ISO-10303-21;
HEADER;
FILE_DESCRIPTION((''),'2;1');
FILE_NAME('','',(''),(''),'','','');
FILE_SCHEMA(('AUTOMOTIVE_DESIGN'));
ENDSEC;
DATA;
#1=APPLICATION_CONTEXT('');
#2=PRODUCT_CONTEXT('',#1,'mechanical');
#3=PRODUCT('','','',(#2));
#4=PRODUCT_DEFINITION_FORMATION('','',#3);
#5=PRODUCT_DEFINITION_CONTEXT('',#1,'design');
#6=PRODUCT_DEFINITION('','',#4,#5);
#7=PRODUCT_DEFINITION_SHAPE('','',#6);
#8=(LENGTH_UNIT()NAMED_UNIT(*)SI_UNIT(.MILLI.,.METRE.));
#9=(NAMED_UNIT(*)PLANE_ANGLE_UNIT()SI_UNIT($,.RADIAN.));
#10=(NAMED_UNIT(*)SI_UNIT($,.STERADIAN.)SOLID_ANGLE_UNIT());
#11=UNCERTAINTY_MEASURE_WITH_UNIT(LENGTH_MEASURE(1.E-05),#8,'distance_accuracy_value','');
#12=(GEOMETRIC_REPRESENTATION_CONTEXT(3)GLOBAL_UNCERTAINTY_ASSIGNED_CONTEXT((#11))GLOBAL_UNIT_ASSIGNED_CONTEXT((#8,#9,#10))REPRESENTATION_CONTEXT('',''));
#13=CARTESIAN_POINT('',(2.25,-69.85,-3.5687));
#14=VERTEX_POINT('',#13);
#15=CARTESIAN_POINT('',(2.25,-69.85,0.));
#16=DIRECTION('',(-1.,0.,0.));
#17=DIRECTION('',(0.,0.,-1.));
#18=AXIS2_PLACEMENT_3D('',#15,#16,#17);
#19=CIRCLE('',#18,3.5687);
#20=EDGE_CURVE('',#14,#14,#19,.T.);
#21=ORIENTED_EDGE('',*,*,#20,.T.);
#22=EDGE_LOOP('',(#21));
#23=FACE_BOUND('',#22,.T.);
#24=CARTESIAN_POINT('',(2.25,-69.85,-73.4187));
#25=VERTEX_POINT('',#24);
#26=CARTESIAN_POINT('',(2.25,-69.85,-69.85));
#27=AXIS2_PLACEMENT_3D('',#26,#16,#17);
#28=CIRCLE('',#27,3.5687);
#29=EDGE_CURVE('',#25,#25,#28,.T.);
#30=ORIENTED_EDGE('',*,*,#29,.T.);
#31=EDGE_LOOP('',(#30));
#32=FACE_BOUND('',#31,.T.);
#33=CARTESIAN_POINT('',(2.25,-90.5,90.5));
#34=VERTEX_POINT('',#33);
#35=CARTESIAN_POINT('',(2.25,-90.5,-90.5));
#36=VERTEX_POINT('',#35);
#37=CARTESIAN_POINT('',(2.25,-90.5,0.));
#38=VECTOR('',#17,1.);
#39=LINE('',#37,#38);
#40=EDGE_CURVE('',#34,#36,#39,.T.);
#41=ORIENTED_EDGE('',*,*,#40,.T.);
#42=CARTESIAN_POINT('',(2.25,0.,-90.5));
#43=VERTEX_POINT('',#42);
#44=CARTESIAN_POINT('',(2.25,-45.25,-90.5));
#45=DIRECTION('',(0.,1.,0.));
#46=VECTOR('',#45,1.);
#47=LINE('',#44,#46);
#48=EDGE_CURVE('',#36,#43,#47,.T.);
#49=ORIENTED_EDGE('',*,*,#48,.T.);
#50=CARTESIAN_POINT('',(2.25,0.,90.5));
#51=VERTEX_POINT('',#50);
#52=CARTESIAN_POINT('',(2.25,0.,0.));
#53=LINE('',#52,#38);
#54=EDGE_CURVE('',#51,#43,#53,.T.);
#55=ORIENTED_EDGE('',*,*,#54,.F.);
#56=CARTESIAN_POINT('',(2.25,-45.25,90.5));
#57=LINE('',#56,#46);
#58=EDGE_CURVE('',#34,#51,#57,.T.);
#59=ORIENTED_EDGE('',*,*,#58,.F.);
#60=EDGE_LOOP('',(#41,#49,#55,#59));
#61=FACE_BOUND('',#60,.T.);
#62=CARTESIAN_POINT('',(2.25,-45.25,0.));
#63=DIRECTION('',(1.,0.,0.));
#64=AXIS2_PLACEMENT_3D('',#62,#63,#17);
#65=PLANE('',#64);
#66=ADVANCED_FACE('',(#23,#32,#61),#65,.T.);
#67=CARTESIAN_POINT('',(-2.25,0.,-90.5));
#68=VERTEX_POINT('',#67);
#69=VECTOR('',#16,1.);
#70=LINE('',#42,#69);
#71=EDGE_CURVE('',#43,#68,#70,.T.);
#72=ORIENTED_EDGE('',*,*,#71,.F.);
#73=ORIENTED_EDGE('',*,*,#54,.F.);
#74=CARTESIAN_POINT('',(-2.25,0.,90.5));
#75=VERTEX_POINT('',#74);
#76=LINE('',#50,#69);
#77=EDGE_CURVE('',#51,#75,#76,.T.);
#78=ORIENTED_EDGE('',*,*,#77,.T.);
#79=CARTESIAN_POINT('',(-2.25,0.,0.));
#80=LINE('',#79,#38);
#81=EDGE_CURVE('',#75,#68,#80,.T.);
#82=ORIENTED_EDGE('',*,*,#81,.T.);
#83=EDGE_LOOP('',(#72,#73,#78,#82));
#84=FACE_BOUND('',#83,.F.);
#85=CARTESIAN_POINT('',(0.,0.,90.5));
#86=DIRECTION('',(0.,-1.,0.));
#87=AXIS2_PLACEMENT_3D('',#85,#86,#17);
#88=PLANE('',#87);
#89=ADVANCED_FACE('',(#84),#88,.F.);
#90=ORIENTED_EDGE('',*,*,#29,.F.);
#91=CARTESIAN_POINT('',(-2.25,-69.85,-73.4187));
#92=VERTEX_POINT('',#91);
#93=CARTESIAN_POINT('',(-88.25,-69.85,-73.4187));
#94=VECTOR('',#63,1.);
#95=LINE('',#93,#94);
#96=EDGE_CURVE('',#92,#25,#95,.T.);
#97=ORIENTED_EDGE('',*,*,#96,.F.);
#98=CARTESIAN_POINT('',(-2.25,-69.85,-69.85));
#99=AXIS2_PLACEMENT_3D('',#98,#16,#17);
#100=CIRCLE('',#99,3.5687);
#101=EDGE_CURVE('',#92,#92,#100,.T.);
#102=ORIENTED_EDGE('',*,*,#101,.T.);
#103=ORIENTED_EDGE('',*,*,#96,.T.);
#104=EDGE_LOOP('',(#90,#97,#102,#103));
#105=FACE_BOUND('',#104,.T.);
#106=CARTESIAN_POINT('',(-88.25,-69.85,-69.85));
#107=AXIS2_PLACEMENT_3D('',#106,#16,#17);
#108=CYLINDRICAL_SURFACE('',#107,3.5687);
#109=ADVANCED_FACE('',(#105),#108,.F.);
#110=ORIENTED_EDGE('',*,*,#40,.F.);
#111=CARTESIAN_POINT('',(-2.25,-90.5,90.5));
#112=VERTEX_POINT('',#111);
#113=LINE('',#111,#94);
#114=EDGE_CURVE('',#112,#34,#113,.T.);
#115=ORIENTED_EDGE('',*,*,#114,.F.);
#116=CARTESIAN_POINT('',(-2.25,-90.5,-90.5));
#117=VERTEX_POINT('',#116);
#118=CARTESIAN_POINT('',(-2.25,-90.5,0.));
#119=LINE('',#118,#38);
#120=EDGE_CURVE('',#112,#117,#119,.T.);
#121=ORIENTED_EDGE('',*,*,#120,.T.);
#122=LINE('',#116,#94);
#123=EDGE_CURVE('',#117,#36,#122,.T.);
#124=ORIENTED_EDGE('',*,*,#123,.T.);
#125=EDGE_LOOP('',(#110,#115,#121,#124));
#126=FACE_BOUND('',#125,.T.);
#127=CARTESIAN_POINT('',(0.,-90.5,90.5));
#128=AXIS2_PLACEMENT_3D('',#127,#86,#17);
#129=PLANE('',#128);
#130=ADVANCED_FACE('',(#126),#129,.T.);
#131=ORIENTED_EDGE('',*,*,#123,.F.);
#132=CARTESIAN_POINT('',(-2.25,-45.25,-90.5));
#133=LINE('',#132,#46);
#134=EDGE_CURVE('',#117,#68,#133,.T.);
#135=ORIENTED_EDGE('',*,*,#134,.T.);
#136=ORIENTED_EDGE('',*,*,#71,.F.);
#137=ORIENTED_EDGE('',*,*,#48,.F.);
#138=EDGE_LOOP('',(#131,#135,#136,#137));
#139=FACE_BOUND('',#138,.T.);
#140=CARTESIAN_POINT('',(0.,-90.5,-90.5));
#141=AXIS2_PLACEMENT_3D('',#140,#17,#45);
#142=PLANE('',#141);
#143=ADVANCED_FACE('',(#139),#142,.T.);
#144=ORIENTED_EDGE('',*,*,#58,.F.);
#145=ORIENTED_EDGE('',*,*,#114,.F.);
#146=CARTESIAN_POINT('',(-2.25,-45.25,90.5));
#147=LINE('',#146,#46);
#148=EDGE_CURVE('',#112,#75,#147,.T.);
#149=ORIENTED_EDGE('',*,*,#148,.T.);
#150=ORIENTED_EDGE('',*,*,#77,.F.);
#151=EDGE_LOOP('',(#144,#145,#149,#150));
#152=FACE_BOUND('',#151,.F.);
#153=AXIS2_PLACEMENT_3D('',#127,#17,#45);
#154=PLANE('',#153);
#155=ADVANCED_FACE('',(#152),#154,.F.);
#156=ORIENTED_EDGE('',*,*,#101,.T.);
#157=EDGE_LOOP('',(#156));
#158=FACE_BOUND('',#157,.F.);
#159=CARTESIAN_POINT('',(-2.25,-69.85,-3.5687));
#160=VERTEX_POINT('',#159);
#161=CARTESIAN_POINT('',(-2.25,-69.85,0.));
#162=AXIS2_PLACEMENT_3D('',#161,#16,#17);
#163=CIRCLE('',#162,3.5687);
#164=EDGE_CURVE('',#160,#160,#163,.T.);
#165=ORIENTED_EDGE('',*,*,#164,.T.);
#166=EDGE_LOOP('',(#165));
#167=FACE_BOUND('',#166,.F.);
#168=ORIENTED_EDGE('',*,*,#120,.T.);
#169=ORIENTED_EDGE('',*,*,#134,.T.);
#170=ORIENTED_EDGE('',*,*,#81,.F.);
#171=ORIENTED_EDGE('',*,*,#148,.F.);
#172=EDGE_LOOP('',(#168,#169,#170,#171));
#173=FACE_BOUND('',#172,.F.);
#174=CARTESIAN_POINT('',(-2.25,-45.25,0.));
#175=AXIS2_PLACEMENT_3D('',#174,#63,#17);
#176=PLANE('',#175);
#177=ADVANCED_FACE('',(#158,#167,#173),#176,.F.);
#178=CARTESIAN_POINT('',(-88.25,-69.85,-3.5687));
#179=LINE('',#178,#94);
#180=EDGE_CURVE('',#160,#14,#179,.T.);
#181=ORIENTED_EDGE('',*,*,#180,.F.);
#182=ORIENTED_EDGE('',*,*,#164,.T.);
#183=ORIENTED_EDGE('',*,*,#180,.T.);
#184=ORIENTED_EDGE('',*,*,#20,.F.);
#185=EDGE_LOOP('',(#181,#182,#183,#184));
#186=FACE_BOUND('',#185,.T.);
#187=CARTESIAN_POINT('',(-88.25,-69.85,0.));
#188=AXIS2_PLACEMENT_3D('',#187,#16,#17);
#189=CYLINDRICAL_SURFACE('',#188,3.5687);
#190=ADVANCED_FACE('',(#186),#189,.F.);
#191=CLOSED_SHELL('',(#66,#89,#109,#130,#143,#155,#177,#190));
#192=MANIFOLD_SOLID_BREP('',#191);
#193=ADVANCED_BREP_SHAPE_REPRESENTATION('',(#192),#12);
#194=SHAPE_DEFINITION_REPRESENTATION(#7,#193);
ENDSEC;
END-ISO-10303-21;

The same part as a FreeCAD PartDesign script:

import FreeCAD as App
import Part
import Sketcher
Q = App.Units.Quantity


def add_polygon(sketch, points):
    """Adds a closed chain of lines whose ends are joined by coincident constraints."""
    first, n = sketch.GeometryCount, len(points)
    for a, b in zip(points, points[1:] + points[:1]):
        sketch.addGeometry(Part.LineSegment(App.Vector(*a, 0), App.Vector(*b, 0)), False)
    for i in range(n):
        sketch.addConstraint(Sketcher.Constraint("Coincident", first + i, 2, first + (i + 1) % n, 1))

doc = App.newDocument("Part")
body = doc.addObject("PartDesign::Body", "Body")

# Sketch on YZ plane
sketch1 = doc.addObject("Sketcher::SketchObject", "Sketch")
body.addObject(sketch1)
sketch1.AttachmentSupport = (doc.YZ_Plane, [""])
sketch1.MapMode = "FlatFace"
add_polygon(sketch1, [(0, 90.5), (-90.5, 90.5), (-90.5, -90.5), (0, -90.5)])  # lines 0-3
sketch1.addConstraint([
    Sketcher.Constraint("Horizontal", 0),
    Sketcher.Constraint("Vertical", 1),
    Sketcher.Constraint("Horizontal", 2),
    Sketcher.Constraint("Vertical", 3),
    Sketcher.Constraint("Symmetric", 2, 2, 3, 2, -1, 1),
    Sketcher.Constraint("DistanceY", 1, 2, 1, 1, Q("181 mm")),
    Sketcher.Constraint("DistanceX", 0, 2, 0, 1, Q("90.5 mm")),
])
pad1 = doc.addObject("PartDesign::Pad", "Pad")
body.addObject(pad1)
pad1.Profile = sketch1
pad1.Length = 4.5
pad1.Midplane = True

# Sketch on YZ plane
sketch2 = doc.addObject("Sketcher::SketchObject", "Sketch001")
body.addObject(sketch2)
sketch2.AttachmentSupport = (doc.YZ_Plane, [""])
sketch2.MapMode = "FlatFace"
sketch2.AttachmentOffset = App.Placement(App.Vector(0, 0, -88.25), App.Rotation())
sketch2.addGeometry([
    Part.Circle(App.Vector(-69.85, 0, 0), App.Vector(0, 0, 1), 3.5687),
    Part.Circle(App.Vector(-69.85, -69.85, 0), App.Vector(0, 0, 1), 3.5687),
], False)
sketch2.addConstraint([
    Sketcher.Constraint("Equal", 0, 1),
    Sketcher.Constraint("PointOnObject", 0, 3, -1),
    Sketcher.Constraint("Vertical", 0, 3, 1, 3),
    Sketcher.Constraint("Diameter", 0, Q("7.1374 mm")),
    Sketcher.Constraint("DistanceX", 0, 3, -1, 1, Q("69.85 mm")),
    Sketcher.Constraint("DistanceY", 1, 3, -1, 1, Q("69.85 mm")),
])
pocket1 = doc.addObject("PartDesign::Pocket", "Pocket")
body.addObject(pocket1)
pocket1.Profile = sketch2
pocket1.Type = "ThroughAll"
pocket1.Midplane = True

doc.recompute()
